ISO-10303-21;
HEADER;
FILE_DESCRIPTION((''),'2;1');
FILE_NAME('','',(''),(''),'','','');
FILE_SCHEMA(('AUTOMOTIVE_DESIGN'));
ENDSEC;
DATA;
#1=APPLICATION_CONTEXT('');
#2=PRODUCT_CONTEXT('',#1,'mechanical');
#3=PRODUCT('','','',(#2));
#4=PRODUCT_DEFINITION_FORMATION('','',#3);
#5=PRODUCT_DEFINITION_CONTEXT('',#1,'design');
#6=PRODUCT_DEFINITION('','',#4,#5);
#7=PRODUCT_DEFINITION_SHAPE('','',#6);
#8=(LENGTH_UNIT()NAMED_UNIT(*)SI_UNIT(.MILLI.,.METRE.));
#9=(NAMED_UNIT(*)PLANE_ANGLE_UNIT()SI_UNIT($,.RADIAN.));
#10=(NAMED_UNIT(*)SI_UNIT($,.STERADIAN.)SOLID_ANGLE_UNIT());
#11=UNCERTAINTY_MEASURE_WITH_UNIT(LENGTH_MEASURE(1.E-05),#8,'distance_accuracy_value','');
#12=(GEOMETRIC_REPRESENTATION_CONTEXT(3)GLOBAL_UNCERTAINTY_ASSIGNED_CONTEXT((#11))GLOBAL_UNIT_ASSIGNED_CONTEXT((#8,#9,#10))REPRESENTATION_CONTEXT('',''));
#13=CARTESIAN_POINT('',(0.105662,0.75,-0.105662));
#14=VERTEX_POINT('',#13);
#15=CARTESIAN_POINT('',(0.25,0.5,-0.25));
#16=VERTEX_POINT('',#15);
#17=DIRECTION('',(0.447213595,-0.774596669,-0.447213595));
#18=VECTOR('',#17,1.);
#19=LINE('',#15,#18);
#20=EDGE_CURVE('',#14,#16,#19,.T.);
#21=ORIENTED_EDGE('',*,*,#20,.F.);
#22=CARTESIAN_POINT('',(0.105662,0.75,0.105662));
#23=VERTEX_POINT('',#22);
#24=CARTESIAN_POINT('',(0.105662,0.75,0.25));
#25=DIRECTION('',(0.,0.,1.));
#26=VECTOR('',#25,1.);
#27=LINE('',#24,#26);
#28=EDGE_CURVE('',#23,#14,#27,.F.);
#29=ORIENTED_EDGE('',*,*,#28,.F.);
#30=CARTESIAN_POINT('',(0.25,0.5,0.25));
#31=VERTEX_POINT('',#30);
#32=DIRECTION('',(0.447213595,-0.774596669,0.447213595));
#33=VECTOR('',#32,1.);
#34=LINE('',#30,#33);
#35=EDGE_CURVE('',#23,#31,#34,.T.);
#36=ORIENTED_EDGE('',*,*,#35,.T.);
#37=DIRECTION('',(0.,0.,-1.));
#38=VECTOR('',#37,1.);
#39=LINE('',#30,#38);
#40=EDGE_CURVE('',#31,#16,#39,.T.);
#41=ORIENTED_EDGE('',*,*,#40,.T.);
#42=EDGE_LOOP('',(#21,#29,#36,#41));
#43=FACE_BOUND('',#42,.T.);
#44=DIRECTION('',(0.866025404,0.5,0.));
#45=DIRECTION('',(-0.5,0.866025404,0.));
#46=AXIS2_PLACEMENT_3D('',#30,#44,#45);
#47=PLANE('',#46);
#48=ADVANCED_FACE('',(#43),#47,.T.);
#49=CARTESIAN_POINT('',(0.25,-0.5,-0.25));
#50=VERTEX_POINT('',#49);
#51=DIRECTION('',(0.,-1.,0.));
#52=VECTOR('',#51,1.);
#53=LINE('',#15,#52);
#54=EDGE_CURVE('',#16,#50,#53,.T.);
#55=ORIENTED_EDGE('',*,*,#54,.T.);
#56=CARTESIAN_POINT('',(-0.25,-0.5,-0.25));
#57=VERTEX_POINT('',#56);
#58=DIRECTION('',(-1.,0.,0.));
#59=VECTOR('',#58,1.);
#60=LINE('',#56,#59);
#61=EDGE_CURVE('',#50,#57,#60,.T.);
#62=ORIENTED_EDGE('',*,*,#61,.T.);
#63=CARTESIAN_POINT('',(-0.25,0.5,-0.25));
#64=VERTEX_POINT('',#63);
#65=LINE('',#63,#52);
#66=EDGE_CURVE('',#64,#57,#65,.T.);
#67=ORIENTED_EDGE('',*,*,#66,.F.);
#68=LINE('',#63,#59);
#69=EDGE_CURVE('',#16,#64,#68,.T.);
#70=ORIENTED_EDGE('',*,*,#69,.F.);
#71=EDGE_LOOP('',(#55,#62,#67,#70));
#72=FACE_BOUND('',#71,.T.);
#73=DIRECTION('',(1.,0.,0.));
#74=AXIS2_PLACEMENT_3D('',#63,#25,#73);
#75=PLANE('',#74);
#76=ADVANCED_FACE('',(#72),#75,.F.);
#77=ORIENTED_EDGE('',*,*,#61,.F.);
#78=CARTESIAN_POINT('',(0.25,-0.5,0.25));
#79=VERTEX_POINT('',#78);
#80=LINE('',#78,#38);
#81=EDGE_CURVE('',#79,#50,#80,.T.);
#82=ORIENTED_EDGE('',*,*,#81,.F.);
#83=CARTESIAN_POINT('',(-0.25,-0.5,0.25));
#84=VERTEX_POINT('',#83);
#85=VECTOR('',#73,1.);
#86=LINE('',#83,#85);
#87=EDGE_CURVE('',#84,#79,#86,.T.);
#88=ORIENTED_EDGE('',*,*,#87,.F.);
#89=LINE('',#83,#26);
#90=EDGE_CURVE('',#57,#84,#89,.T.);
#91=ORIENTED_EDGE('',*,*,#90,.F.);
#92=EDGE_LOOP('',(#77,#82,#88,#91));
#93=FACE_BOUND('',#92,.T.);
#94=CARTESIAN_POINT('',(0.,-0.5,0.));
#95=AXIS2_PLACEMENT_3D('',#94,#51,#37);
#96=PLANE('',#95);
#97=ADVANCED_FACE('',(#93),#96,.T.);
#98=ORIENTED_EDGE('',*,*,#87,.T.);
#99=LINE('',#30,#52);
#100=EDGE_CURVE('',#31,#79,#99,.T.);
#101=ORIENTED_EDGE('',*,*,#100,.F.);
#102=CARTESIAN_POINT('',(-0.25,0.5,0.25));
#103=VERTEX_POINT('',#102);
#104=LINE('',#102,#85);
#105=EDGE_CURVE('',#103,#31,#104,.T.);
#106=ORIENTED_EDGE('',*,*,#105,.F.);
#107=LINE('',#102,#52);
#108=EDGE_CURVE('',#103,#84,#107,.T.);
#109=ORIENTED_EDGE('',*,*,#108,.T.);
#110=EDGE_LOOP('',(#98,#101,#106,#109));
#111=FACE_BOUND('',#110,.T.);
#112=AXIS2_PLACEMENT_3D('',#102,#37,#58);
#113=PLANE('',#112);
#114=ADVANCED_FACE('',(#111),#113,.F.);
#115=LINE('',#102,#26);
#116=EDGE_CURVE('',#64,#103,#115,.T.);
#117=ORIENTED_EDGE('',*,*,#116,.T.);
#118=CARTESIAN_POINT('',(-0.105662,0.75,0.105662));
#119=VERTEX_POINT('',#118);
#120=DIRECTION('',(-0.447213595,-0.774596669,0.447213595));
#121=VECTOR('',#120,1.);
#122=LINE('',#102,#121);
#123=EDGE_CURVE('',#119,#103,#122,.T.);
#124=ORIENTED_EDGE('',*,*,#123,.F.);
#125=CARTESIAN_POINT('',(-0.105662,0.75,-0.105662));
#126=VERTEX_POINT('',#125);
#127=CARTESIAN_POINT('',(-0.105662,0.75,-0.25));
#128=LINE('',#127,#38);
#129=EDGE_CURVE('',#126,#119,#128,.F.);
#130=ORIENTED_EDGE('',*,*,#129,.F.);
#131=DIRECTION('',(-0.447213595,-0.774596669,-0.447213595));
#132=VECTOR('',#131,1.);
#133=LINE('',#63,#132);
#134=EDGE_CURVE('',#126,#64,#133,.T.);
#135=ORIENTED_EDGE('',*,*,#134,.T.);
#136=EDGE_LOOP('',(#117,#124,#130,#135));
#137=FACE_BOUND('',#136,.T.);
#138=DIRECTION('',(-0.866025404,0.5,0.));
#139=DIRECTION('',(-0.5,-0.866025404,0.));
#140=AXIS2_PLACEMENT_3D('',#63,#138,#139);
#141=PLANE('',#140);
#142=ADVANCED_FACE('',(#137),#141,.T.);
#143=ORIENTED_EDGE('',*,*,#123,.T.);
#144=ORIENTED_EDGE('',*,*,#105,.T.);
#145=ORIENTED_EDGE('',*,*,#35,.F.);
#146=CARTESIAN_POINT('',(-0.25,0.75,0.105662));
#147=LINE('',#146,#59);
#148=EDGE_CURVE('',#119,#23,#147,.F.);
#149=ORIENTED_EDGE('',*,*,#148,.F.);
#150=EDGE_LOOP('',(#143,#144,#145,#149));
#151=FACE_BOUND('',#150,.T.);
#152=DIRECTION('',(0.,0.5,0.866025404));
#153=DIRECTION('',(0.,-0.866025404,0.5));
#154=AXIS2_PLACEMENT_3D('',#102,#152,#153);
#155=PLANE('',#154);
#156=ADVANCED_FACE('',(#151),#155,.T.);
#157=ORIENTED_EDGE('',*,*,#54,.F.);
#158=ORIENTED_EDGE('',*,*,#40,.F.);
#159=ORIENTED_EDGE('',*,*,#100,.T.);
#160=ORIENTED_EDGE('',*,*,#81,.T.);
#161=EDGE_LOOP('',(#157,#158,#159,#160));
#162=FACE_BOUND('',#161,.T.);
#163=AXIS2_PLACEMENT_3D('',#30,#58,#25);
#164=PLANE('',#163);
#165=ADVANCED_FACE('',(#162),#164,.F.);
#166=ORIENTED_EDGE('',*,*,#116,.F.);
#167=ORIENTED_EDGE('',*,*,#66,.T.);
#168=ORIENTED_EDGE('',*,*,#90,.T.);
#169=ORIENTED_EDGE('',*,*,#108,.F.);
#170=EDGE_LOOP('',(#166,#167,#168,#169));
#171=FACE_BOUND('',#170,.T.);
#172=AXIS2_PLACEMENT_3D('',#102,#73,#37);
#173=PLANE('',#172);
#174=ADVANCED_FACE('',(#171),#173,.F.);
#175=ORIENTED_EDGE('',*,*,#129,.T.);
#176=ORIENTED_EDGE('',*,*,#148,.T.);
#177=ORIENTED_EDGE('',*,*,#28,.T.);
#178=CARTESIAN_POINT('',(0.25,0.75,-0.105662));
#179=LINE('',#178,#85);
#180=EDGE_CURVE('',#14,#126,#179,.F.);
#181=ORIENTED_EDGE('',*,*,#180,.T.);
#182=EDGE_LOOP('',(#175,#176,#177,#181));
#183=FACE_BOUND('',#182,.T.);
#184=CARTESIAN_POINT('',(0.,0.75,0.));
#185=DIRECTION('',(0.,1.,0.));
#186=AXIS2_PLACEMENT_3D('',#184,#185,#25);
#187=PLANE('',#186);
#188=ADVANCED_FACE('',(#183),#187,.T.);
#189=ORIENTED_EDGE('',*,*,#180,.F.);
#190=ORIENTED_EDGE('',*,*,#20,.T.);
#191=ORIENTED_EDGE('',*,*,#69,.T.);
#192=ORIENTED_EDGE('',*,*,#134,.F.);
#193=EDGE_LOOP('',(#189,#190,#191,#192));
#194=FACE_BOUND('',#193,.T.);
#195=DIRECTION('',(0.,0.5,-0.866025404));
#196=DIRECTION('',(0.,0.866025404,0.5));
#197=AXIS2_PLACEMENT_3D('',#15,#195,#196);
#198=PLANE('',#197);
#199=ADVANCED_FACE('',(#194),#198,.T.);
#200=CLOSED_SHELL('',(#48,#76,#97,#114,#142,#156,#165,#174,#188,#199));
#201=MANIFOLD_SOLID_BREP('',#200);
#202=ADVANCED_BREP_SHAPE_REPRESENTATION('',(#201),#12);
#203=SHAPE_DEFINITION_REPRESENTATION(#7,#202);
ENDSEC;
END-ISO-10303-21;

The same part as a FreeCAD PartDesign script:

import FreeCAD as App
import Part
import Sketcher
Q = App.Units.Quantity


def add_polygon(sketch, points):
    """Adds a closed chain of lines whose ends are joined by coincident constraints."""
    first, n = sketch.GeometryCount, len(points)
    for a, b in zip(points, points[1:] + points[:1]):
        sketch.addGeometry(Part.LineSegment(App.Vector(*a, 0), App.Vector(*b, 0)), False)
    for i in range(n):
        sketch.addConstraint(Sketcher.Constraint("Coincident", first + i, 2, first + (i + 1) % n, 1))

doc = App.newDocument("Part")
body = doc.addObject("PartDesign::Body", "Body")

# Sketch on XZ plane
sketch1 = body.newObject("Sketcher::SketchObject", "Sketch")
sketch1.AttachmentSupport = (doc.getObject("XZ_Plane"), [""])
sketch1.MapMode = "FlatFace"
add_polygon(sketch1, [(-0.2, -0.2), (-0.2, 0.2), (0.2, 0.2), (0.2, -0.2)])  # lines 0-3
sketch1.addConstraint([
    Sketcher.Constraint("Vertical", 0),
    Sketcher.Constraint("Horizontal", 1),
    Sketcher.Constraint("Vertical", 2),
    Sketcher.Constraint("Horizontal", 3),
    Sketcher.Constraint("Symmetric", 0, 2, 2, 2, -1, 1),
    Sketcher.Constraint("Equal", 3, 0),
    Sketcher.Constraint("DistanceX", 1, 1, 1, 2, Q("0.5 mm")),
])
pad1 = body.newObject("PartDesign::Pad", "Pad")
pad1.Profile = sketch1
pad1.Length = 1
pad1.Midplane = True

# Sketch on XZ plane
sketch2 = body.newObject("Sketcher::SketchObject", "Sketch001")
sketch2.AttachmentSupport = (doc.getObject("XZ_Plane"), [""])
sketch2.MapMode = "FlatFace"
sketch2.AttachmentOffset = App.Placement(App.Vector(0, 0, -0.5), App.Rotation())
add_polygon(sketch2, [(-0.2, -0.2), (-0.2, 0.2), (0.2, 0.2), (0.2, -0.2)])  # lines 0-3
sketch2.addConstraint([
    Sketcher.Constraint("Vertical", 0),
    Sketcher.Constraint("Horizontal", 1),
    Sketcher.Constraint("Vertical", 2),
    Sketcher.Constraint("Horizontal", 3),
    Sketcher.Constraint("Symmetric", 0, 2, 2, 2, -1, 1),
    Sketcher.Constraint("Equal", 3, 0),
    Sketcher.Constraint("DistanceX", 1, 1, 1, 2, Q("0.5 mm")),
])
pad2 = body.newObject("PartDesign::Pad", "Pad001")
pad2.Profile = sketch2
pad2.Length = 0.25
pad2.Reversed = True
pad2.TaperAngle = -30

doc.recompute()
